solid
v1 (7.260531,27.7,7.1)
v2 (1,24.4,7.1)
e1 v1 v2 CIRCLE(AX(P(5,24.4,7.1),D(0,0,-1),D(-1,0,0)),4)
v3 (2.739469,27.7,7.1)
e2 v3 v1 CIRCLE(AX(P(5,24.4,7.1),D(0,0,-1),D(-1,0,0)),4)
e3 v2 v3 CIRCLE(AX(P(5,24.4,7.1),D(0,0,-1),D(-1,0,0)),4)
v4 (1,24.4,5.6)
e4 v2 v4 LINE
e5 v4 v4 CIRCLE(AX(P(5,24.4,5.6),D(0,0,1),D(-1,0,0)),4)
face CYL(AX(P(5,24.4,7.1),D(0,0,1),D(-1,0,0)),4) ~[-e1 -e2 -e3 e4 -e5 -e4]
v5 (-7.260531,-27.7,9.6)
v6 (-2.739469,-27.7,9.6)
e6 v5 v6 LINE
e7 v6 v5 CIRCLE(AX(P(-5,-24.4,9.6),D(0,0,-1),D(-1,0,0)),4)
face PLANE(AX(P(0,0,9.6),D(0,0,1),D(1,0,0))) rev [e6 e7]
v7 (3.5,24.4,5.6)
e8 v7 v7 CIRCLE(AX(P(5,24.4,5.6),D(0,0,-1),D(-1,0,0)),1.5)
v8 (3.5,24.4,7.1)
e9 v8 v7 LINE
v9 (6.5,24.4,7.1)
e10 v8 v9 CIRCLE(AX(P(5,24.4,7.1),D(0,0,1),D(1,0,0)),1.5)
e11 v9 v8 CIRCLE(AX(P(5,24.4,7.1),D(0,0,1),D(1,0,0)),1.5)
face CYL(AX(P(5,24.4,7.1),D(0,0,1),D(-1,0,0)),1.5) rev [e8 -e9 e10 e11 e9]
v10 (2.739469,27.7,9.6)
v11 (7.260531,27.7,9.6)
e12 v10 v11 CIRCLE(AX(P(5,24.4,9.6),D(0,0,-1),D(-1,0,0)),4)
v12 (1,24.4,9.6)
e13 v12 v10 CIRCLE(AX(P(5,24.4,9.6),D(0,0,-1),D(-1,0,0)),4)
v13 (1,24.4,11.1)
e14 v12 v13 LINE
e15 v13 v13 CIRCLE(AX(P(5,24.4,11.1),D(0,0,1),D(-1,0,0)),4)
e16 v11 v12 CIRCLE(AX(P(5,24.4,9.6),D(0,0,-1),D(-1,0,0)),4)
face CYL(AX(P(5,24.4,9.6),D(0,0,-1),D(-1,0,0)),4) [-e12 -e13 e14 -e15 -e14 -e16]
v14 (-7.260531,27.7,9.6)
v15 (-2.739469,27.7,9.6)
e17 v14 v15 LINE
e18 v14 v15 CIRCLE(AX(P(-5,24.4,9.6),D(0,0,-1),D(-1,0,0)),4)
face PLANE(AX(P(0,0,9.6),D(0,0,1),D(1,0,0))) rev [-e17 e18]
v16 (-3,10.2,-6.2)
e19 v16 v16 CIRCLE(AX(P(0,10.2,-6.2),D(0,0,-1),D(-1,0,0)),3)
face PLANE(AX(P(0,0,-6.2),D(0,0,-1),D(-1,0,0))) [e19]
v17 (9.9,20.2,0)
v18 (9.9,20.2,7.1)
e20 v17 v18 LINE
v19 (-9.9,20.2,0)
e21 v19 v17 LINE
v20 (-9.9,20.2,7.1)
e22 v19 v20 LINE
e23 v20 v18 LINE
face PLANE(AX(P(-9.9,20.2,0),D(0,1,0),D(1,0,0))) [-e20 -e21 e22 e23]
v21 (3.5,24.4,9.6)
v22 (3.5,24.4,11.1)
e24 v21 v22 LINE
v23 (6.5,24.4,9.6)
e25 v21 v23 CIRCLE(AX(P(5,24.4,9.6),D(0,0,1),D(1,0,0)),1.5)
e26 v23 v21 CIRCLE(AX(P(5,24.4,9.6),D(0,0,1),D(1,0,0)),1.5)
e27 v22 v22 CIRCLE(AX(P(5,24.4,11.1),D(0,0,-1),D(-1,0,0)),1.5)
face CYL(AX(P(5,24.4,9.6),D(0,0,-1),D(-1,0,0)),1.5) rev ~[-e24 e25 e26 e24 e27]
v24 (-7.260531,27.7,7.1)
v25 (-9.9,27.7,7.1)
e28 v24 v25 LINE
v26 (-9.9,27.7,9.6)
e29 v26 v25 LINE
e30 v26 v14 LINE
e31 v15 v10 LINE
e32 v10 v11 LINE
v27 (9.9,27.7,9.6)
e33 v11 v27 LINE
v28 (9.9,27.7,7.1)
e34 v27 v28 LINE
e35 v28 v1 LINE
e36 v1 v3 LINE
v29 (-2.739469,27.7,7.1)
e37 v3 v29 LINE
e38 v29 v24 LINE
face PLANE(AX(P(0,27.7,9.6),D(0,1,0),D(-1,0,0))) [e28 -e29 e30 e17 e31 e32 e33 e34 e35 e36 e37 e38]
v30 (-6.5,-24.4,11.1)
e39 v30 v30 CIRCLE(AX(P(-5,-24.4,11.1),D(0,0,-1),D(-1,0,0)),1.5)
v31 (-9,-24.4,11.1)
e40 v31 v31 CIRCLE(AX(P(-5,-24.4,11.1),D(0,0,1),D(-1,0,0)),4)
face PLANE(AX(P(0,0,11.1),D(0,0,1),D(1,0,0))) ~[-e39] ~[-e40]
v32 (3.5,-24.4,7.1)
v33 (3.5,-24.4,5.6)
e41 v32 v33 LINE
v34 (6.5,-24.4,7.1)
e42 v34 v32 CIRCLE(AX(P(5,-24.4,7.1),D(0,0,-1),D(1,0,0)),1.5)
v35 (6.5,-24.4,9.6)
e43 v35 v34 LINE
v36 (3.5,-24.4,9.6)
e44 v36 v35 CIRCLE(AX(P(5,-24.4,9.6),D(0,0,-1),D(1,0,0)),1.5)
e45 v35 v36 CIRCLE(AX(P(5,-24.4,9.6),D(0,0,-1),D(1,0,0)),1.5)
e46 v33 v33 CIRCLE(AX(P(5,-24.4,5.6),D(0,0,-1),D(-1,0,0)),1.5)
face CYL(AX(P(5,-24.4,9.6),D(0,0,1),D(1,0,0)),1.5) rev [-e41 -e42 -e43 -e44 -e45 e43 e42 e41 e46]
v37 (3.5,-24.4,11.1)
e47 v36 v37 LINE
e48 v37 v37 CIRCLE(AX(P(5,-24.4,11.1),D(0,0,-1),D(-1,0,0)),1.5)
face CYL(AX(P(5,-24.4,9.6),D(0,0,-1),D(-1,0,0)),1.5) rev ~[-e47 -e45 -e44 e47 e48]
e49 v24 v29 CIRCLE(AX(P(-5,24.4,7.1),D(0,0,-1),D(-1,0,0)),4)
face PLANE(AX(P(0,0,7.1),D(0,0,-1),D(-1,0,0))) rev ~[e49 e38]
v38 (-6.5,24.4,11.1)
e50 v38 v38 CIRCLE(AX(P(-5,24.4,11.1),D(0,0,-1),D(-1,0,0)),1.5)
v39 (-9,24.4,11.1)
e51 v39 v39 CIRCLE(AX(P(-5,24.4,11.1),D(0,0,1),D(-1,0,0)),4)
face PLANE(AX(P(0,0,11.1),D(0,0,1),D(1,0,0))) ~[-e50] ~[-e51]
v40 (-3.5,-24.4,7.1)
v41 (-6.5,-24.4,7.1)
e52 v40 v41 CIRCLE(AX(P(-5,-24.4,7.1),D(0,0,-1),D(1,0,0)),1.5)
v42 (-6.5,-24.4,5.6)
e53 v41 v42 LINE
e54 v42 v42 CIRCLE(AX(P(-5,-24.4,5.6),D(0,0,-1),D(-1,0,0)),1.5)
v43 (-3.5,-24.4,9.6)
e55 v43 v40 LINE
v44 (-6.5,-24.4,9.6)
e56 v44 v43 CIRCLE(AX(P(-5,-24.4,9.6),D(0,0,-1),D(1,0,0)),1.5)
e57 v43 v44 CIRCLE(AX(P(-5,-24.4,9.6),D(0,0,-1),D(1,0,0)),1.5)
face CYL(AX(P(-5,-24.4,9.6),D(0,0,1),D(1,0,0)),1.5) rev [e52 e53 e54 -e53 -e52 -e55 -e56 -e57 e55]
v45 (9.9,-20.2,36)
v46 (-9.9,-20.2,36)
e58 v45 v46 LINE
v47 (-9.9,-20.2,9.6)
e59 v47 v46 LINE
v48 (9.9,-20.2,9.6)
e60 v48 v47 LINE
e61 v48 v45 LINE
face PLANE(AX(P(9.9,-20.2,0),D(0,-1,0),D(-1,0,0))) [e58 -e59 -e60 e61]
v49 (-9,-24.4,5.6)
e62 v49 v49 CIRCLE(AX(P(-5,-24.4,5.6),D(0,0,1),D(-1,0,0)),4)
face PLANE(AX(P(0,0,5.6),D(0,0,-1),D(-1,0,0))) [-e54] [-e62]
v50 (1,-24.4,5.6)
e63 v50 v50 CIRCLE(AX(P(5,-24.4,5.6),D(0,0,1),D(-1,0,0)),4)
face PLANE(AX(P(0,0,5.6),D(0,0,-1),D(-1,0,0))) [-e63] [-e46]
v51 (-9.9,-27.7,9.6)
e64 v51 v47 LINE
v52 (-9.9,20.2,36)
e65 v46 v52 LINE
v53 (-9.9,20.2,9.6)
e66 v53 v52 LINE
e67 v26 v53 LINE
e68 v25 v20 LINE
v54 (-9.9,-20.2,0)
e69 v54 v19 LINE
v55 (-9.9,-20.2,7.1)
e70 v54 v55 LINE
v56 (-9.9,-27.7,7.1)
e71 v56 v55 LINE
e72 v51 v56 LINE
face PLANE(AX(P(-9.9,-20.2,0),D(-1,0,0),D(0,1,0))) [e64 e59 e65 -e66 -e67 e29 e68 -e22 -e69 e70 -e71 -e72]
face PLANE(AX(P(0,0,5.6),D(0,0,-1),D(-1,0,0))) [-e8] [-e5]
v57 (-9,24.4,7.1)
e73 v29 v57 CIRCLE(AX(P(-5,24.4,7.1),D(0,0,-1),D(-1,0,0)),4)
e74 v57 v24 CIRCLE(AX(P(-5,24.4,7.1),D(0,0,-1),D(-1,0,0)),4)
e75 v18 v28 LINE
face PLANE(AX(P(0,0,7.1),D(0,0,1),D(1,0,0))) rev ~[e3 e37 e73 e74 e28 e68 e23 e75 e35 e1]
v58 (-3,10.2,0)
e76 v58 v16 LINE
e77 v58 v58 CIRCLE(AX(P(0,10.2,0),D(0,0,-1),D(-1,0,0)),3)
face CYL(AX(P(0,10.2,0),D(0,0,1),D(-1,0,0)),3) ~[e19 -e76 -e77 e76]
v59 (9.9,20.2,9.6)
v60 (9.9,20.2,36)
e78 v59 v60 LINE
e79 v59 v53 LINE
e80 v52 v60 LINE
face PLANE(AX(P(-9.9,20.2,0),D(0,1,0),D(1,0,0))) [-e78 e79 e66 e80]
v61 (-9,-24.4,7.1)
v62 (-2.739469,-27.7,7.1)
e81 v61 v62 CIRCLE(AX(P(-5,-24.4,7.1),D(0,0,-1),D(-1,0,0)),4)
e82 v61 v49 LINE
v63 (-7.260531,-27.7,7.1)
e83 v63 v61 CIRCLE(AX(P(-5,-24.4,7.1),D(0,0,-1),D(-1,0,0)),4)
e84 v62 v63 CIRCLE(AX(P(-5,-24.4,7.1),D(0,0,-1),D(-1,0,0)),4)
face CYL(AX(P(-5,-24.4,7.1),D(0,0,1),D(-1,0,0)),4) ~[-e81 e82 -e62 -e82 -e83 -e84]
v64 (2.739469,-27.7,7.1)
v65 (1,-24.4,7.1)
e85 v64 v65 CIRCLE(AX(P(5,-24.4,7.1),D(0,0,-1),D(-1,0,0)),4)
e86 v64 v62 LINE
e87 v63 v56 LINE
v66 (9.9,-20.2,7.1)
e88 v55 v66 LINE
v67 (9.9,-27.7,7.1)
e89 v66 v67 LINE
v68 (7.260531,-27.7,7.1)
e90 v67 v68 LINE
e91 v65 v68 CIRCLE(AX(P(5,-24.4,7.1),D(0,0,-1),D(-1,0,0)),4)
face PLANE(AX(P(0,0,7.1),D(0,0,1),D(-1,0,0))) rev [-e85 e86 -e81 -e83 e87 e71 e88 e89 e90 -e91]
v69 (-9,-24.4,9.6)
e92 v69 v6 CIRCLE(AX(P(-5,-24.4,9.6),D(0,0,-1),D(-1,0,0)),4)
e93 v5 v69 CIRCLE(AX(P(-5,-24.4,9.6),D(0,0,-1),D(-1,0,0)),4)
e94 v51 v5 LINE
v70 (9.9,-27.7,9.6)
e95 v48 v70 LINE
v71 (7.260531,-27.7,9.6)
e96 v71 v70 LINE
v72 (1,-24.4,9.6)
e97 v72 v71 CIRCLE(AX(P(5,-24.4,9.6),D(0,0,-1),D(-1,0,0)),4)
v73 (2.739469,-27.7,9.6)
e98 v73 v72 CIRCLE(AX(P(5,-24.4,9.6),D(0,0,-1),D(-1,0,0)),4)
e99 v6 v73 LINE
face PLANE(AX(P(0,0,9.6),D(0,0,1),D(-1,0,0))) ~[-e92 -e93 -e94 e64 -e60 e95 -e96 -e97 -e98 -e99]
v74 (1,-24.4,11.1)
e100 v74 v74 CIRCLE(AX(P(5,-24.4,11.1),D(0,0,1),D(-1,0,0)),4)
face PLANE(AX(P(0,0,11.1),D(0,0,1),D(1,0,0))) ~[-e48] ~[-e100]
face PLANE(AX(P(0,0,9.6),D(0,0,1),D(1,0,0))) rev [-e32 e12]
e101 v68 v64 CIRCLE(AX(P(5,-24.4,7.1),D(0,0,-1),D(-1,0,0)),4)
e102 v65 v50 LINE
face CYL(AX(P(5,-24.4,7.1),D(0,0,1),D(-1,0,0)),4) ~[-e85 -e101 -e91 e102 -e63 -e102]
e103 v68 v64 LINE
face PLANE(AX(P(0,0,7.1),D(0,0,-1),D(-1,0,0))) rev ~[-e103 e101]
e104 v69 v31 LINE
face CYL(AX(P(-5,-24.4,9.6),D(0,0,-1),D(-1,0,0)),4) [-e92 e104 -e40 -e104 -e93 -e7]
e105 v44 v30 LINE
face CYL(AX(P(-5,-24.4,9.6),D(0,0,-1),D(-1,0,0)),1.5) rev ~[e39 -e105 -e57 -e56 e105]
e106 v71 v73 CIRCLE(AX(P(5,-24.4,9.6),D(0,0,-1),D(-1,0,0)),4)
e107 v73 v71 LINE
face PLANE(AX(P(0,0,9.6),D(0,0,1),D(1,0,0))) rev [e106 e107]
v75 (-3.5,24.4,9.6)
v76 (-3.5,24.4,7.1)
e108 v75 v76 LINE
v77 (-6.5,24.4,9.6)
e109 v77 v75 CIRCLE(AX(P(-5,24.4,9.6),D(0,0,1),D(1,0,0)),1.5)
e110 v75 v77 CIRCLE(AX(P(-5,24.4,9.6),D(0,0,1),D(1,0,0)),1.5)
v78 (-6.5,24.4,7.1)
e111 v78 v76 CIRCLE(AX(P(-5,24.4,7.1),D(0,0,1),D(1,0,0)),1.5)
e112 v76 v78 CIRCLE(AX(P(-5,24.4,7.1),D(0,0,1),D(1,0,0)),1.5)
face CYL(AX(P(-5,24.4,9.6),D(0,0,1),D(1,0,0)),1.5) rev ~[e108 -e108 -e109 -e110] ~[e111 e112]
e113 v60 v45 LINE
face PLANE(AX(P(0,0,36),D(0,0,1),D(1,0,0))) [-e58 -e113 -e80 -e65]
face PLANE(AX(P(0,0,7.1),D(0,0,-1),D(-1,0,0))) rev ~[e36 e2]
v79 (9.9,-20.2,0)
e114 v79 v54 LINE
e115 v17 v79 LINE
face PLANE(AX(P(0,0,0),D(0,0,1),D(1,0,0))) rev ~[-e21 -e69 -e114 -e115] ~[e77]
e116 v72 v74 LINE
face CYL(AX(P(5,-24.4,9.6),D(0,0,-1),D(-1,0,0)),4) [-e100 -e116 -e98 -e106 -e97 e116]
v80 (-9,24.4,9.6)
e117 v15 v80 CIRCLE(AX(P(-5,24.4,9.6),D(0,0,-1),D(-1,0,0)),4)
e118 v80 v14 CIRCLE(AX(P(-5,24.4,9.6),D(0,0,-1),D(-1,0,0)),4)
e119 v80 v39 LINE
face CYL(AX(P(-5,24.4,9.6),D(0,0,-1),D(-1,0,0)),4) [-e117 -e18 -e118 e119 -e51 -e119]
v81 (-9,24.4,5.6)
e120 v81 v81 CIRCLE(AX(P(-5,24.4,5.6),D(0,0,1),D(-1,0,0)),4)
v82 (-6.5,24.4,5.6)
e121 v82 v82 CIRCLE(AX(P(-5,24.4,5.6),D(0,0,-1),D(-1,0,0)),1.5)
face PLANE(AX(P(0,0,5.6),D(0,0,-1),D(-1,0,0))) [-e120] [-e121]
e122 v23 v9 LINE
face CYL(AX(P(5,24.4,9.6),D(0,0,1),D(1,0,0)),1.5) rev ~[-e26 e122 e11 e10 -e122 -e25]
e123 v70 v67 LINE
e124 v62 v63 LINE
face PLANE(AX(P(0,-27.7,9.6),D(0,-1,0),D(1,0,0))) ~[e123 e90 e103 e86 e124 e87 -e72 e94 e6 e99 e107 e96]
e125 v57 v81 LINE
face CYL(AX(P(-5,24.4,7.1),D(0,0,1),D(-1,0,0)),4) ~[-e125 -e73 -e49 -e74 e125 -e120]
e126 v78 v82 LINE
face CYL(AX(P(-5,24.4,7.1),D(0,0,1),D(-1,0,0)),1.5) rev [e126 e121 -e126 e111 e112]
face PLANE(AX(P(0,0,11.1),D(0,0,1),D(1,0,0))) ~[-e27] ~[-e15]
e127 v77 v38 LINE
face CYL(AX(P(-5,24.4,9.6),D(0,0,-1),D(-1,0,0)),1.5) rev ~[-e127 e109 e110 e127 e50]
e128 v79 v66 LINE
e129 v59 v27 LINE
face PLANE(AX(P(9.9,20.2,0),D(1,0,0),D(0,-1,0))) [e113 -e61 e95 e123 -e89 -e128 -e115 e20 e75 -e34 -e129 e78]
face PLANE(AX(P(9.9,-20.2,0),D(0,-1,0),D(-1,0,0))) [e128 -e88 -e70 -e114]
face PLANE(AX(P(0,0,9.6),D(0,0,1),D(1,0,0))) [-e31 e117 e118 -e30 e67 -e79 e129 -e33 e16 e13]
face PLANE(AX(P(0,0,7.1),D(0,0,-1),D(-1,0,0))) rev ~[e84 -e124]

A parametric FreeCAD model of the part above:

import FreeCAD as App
import Part
import Sketcher

doc = App.newDocument("Part")
params = doc.addObject("Spreadsheet::Sheet", "Params")
for row, (alias, value) in enumerate([
    ("sketch1_width", "19.8 mm"),
    ("sketch1_height", "40.4 mm"),
    ("pad1_length", "36 mm"),
    ("sketch2_diameter", "6 mm"),
    ("pad2_length", "6.2 mm"),
    ("sketch3_diameter", "3 mm"),
    ("sketch3_height", "7.5 mm"),
    ("sketch3_width", "19.8 mm"),
    ("pad3_length", "2.5 mm"),
    ("sketch4_diameter", "8 mm"),
    ("sketch4_diameter2", "3 mm"),
    ("pad4_length", "1.5 mm"),
], start=1):
    params.set(f"A{row}", alias)
    params.set(f"B{row}", "=" + value)
    params.setAlias(f"B{row}", alias)

body = doc.addObject("PartDesign::Body", "Body")

# Sketch on XY plane
sketch1 = doc.addObject("Sketcher::SketchObject", "Sketch")
body.addObject(sketch1)
sketch1.AttachmentSupport = (doc.XY_Plane, [""])
sketch1.MapMode = "FlatFace"
sketch1.addGeometry([
    Part.LineSegment(App.Vector(-10, -20, 0), App.Vector(10, -20, 0)),
    Part.LineSegment(App.Vector(10, -20, 0), App.Vector(10, 20, 0)),
    Part.LineSegment(App.Vector(10, 20, 0), App.Vector(-10, 20, 0)),
    Part.LineSegment(App.Vector(-10, 20, 0), App.Vector(-10, -20, 0)),
], False)
sketch1.addConstraint([
    Sketcher.Constraint("Coincident", 0, 2, 1, 1),
    Sketcher.Constraint("Coincident", 1, 2, 2, 1),
    Sketcher.Constraint("Coincident", 2, 2, 3, 1),
    Sketcher.Constraint("Coincident", 3, 2, 0, 1),
    Sketcher.Constraint("Horizontal", 0),
    Sketcher.Constraint("Vertical", 1),
    Sketcher.Constraint("Horizontal", 2),
    Sketcher.Constraint("Vertical", 3),
    Sketcher.Constraint("Symmetric", 0, 2, 2, 2, -1, 1),
    Sketcher.Constraint("DistanceX", 0, 1, 0, 2, 19.8),
    Sketcher.Constraint("DistanceY", 1, 1, 1, 2, 40.4),
])
sketch1.setExpression("Constraints[9]", "Params.sketch1_width")
sketch1.setExpression("Constraints[10]", "Params.sketch1_height")
pad1 = doc.addObject("PartDesign::Pad", "Pad")
body.addObject(pad1)
pad1.Profile = sketch1
pad1.setExpression("Length", "Params.pad1_length")

# Sketch on XY plane
sketch2 = doc.addObject("Sketcher::SketchObject", "Sketch001")
body.addObject(sketch2)
sketch2.AttachmentSupport = (doc.XY_Plane, [""])
sketch2.MapMode = "FlatFace"
sketch2.addGeometry(Part.Circle(App.Vector(0, 10.2, 0), App.Vector(0, 0, 1), 3), False)
sketch2.addConstraint([
    Sketcher.Constraint("PointOnObject", 0, 3, -2),
    Sketcher.Constraint("Diameter", 0, 6.0),
    Sketcher.Constraint("DistanceY", -1, 1, 0, 3, 10.2),
])
sketch2.setExpression("Constraints[1]", "Params.sketch2_diameter")
pad2 = doc.addObject("PartDesign::Pad", "Pad001")
body.addObject(pad2)
pad2.Profile = sketch2
pad2.setExpression("Length", "Params.pad2_length")
pad2.Reversed = True

# Sketch on XY plane
sketch3 = doc.addObject("Sketcher::SketchObject", "Sketch002")
body.addObject(sketch3)
sketch3.AttachmentSupport = (doc.XY_Plane, [""])
sketch3.MapMode = "FlatFace"
sketch3.AttachmentOffset = App.Placement(App.Vector(0, 0, 9.6), App.Rotation())
sketch3.addGeometry([
    Part.LineSegment(App.Vector(-9.9, 27.7, 0), App.Vector(-9.9, 20.2, 0)),  # 0
    Part.LineSegment(App.Vector(-9.9, 20.2, 0), App.Vector(9.9, 20.2, 0)),  # 1
    Part.LineSegment(App.Vector(9.9, 20.2, 0), App.Vector(9.9, 27.7, 0)),  # 2
    Part.LineSegment(App.Vector(9.9, 27.7, 0), App.Vector(-9.9, 27.7, 0)),  # 3
    Part.Circle(App.Vector(-5, 24.4, 0), App.Vector(0, 0, 1), 1.5),  # 4
    Part.Circle(App.Vector(5, 24.4, 0), App.Vector(0, 0, 1), 1.5),  # 5
], False)
sketch3.addConstraint([
    Sketcher.Constraint("Coincident", 0, 2, 1, 1),
    Sketcher.Constraint("Coincident", 1, 2, 2, 1),
    Sketcher.Constraint("Coincident", 2, 2, 3, 1),
    Sketcher.Constraint("Coincident", 3, 2, 0, 1),
    Sketcher.Constraint("Vertical", 0),
    Sketcher.Constraint("Horizontal", 1),
    Sketcher.Constraint("Vertical", 2),
    Sketcher.Constraint("Horizontal", 3),
    Sketcher.Constraint("Equal", 4, 5),
    Sketcher.Constraint("Symmetric", 4, 3, 5, 3, -2),
    Sketcher.Constraint("Diameter", 4, 3.0),
    Sketcher.Constraint("DistanceY", 0, 2, 0, 1, 7.5),
    Sketcher.Constraint("DistanceX", 4, 3, -1, 1, 5.0),
    Sketcher.Constraint("DistanceY", 0, 2, 4, 3, 4.2),
    Sketcher.Constraint("DistanceX", 1, 1, 1, 2, 19.8),
    Sketcher.Constraint("DistanceY", -1, 1, 4, 3, 24.4),
    Sketcher.Constraint("DistanceX", 0, 2, -1, 1, 9.9),
])
sketch3.setExpression("Constraints[10]", "Params.sketch3_diameter")
sketch3.setExpression("Constraints[11]", "Params.sketch3_height")
sketch3.setExpression("Constraints[14]", "Params.sketch3_width")
pad3 = doc.addObject("PartDesign::Pad", "Pad002")
body.addObject(pad3)
pad3.Profile = sketch3
pad3.setExpression("Length", "Params.pad3_length")
pad3.Reversed = True
doc.recompute()

mirrored = doc.addObject("PartDesign::Mirrored", "Mirrored")
body.addObject(mirrored)
mirrored.Originals = [pad3]
mirrored.MirrorPlane = (doc.XZ_Plane, [""])
body.Tip = mirrored

# Sketch on XY plane
sketch4 = doc.addObject("Sketcher::SketchObject", "Sketch003")
body.addObject(sketch4)
sketch4.AttachmentSupport = (doc.XY_Plane, [""])
sketch4.MapMode = "FlatFace"
sketch4.AttachmentOffset = App.Placement(App.Vector(0, 0, 7.1), App.Rotation())
sketch4.addGeometry([
    Part.Circle(App.Vector(-5, 24.4, 0), App.Vector(0, 0, 1), 4),  # 0
    Part.Circle(App.Vector(-5, 24.4, 0), App.Vector(0, 0, 1), 1.5),  # 1
    Part.Circle(App.Vector(5, 24.4, 0), App.Vector(0, 0, 1), 4),  # 2
    Part.Circle(App.Vector(5, 24.4, 0), App.Vector(0, 0, 1), 1.5),  # 3
    Part.Circle(App.Vector(5, -24.4, 0), App.Vector(0, 0, 1), 4),  # 4
    Part.Circle(App.Vector(5, -24.4, 0), App.Vector(0, 0, 1), 1.5),  # 5
    Part.Circle(App.Vector(-5, -24.4, 0), App.Vector(0, 0, 1), 4),  # 6
    Part.Circle(App.Vector(-5, -24.4, 0), App.Vector(0, 0, 1), 1.5),  # 7
], False)
sketch4.addConstraint([
    Sketcher.Constraint("Coincident", 1, 3, 0, 3),
    Sketcher.Constraint("Coincident", 3, 3, 2, 3),
    Sketcher.Constraint("Coincident", 5, 3, 4, 3),
    Sketcher.Constraint("Coincident", 7, 3, 6, 3),
    Sketcher.Constraint("Equal", 0, 2),
    Sketcher.Constraint("Equal", 1, 3),
    Sketcher.Constraint("Equal", 2, 4),
    Sketcher.Constraint("Equal", 3, 5),
    Sketcher.Constraint("Equal", 4, 6),
    Sketcher.Constraint("Equal", 5, 7),
    Sketcher.Constraint("Symmetric", 0, 3, 4, 3, -1, 1),
    Sketcher.Constraint("Symmetric", 2, 3, 6, 3, -1, 1),
    Sketcher.Constraint("Symmetric", 0, 3, 2, 3, -2),
    Sketcher.Constraint("Diameter", 0, 8.0),
    Sketcher.Constraint("Diameter", 1, 3.0),
    Sketcher.Constraint("DistanceX", 0, 3, -1, 1, 5.0),
    Sketcher.Constraint("DistanceY", -1, 1, 0, 3, 24.4),
])
sketch4.setExpression("Constraints[13]", "Params.sketch4_diameter")
sketch4.setExpression("Constraints[14]", "Params.sketch4_diameter2")
pad4 = doc.addObject("PartDesign::Pad", "Pad003")
body.addObject(pad4)
pad4.Profile = sketch4
pad4.setExpression("Length", "Params.pad4_length")
pad4.Reversed = True
doc.recompute()

datumplane = doc.addObject("PartDesign::Plane", "DatumPlane")
body.addObject(datumplane)
datumplane.AttachmentSupport = (doc.XY_Plane, [""])
datumplane.MapMode = "FlatFace"
datumplane.AttachmentOffset = App.Placement(App.Vector(0, 0, 8.35), App.Rotation())
mirrored2 = doc.addObject("PartDesign::Mirrored", "Mirrored001")
body.addObject(mirrored2)
mirrored2.Originals = [pad4]
mirrored2.MirrorPlane = (datumplane, [""])
body.Tip = mirrored2

doc.recompute()
